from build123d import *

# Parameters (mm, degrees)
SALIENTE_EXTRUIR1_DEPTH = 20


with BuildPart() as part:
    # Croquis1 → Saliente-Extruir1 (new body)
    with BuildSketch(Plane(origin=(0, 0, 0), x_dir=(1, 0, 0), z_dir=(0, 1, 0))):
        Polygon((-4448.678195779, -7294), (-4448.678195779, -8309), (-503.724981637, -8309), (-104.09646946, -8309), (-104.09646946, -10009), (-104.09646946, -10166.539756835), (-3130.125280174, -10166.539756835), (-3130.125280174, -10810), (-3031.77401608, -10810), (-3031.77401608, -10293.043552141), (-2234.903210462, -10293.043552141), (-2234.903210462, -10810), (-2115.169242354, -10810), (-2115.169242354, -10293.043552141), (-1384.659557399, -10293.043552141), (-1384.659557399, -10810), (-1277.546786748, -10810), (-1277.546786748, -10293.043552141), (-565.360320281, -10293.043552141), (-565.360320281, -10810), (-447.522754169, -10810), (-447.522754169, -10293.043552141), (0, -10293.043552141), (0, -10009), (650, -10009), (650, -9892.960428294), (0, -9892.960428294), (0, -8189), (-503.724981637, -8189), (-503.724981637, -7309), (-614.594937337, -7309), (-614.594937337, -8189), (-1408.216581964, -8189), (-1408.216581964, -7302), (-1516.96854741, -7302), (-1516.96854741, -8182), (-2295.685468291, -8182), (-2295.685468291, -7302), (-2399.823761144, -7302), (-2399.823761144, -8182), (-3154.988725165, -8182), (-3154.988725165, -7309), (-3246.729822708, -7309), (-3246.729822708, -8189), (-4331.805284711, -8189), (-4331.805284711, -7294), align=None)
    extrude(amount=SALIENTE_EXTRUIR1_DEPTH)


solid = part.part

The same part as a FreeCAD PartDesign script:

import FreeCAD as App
import Part
import Sketcher
from FreeCAD import Vector
Q = App.Units.Quantity

doc = App.newDocument("Part")
body = doc.addObject("PartDesign::Body", "Body")

# Sketch on XZ plane
sketch1 = doc.addObject("Sketcher::SketchObject", "Sketch")
body.addObject(sketch1)
sketch1.AttachmentSupport = (doc.XZ_Plane, [""])
sketch1.MapMode = "FlatFace"
sketch1.addGeometry([
    Part.LineSegment(Vector(-4448.678196, 7294, 0), Vector(-4448.678196, 8309, 0)),  # 0
    Part.LineSegment(Vector(-4448.678196, 8309, 0), Vector(-104.096469, 8309, 0)),  # 1
    Part.LineSegment(Vector(-104.096469, 8309, 0), Vector(-104.096469, 10166.539757, 0)),  # 2
    Part.LineSegment(Vector(-104.096469, 10166.539757, 0), Vector(-3130.12528, 10166.539757, 0)),  # 3
    Part.LineSegment(Vector(-3130.12528, 10166.539757, 0), Vector(-3130.12528, 10810, 0)),  # 4
    Part.LineSegment(Vector(-3130.12528, 10810, 0), Vector(-3031.774016, 10810, 0)),  # 5
    Part.LineSegment(Vector(-3031.774016, 10810, 0), Vector(-3031.774016, 10293.043552, 0)),  # 6
    Part.LineSegment(Vector(-3031.774016, 10293.043552, 0), Vector(-2234.90321, 10293.043552, 0)),  # 7
    Part.LineSegment(Vector(-2234.90321, 10293.043552, 0), Vector(-2234.90321, 10810, 0)),  # 8
    Part.LineSegment(Vector(-2234.90321, 10810, 0), Vector(-2115.169242, 10810, 0)),  # 9
    Part.LineSegment(Vector(-2115.169242, 10810, 0), Vector(-2115.169242, 10293.043552, 0)),  # 10
    Part.LineSegment(Vector(-2115.169242, 10293.043552, 0), Vector(-1384.659557, 10293.043552, 0)),  # 11
    Part.LineSegment(Vector(-1384.659557, 10293.043552, 0), Vector(-1384.659557, 10810, 0)),  # 12
    Part.LineSegment(Vector(-1384.659557, 10810, 0), Vector(-1277.546787, 10810, 0)),  # 13
    Part.LineSegment(Vector(-1277.546787, 10810, 0), Vector(-1277.546787, 10293.043552, 0)),  # 14
    Part.LineSegment(Vector(-1277.546787, 10293.043552, 0), Vector(-565.36032, 10293.043552, 0)),  # 15
    Part.LineSegment(Vector(-565.36032, 10293.043552, 0), Vector(-565.36032, 10810, 0)),  # 16
    Part.LineSegment(Vector(-565.36032, 10810, 0), Vector(-447.522754, 10810, 0)),  # 17
    Part.LineSegment(Vector(-447.522754, 10810, 0), Vector(-447.522754, 10293.043552, 0)),  # 18
    Part.LineSegment(Vector(-447.522754, 10293.043552, 0), Vector(0, 10293.043552, 0)),  # 19
    Part.LineSegment(Vector(0, 10293.043552, 0), Vector(0, 10009, 0)),  # 20
    Part.LineSegment(Vector(0, 10009, 0), Vector(650, 10009, 0)),  # 21
    Part.LineSegment(Vector(650, 10009, 0), Vector(650, 9892.960428, 0)),  # 22
    Part.LineSegment(Vector(650, 9892.960428, 0), Vector(0, 9892.960428, 0)),  # 23
    Part.LineSegment(Vector(0, 9892.960428, 0), Vector(0, 8189, 0)),  # 24
    Part.LineSegment(Vector(0, 8189, 0), Vector(-503.724982, 8189, 0)),  # 25
    Part.LineSegment(Vector(-503.724982, 8189, 0), Vector(-503.724982, 7309, 0)),  # 26
    Part.LineSegment(Vector(-503.724982, 7309, 0), Vector(-614.594937, 7309, 0)),  # 27
    Part.LineSegment(Vector(-614.594937, 7309, 0), Vector(-614.594937, 8189, 0)),  # 28
    Part.LineSegment(Vector(-614.594937, 8189, 0), Vector(-1408.216582, 8189, 0)),  # 29
    Part.LineSegment(Vector(-1408.216582, 8189, 0), Vector(-1408.216582, 7302, 0)),  # 30
    Part.LineSegment(Vector(-1408.216582, 7302, 0), Vector(-1516.968547, 7302, 0)),  # 31
    Part.LineSegment(Vector(-1516.968547, 7302, 0), Vector(-1516.968547, 8182, 0)),  # 32
    Part.LineSegment(Vector(-1516.968547, 8182, 0), Vector(-2295.685468, 8182, 0)),  # 33
    Part.LineSegment(Vector(-2295.685468, 8182, 0), Vector(-2295.685468, 7302, 0)),  # 34
    Part.LineSegment(Vector(-2295.685468, 7302, 0), Vector(-2399.823761, 7302, 0)),  # 35
    Part.LineSegment(Vector(-2399.823761, 7302, 0), Vector(-2399.823761, 8182, 0)),  # 36
    Part.LineSegment(Vector(-2399.823761, 8182, 0), Vector(-3154.988725, 8182, 0)),  # 37
    Part.LineSegment(Vector(-3154.988725, 8182, 0), Vector(-3154.988725, 7309, 0)),  # 38
    Part.LineSegment(Vector(-3154.988725, 7309, 0), Vector(-3246.729823, 7309, 0)),  # 39
    Part.LineSegment(Vector(-3246.729823, 7309, 0), Vector(-3246.729823, 8189, 0)),  # 40
    Part.LineSegment(Vector(-3246.729823, 8189, 0), Vector(-4331.805285, 8189, 0)),  # 41
    Part.LineSegment(Vector(-4331.805285, 8189, 0), Vector(-4331.805285, 7294, 0)),  # 42
    Part.LineSegment(Vector(-4331.805285, 7294, 0), Vector(-4448.678196, 7294, 0)),  # 43
], False)
sketch1.addConstraint([
    Sketcher.Constraint("Coincident", 0, 2, 1, 1),
    Sketcher.Constraint("Coincident", 1, 2, 2, 1),
    Sketcher.Constraint("Coincident", 2, 2, 3, 1),
    Sketcher.Constraint("Coincident", 3, 2, 4, 1),
    Sketcher.Constraint("Coincident", 4, 2, 5, 1),
    Sketcher.Constraint("Coincident", 5, 2, 6, 1),
    Sketcher.Constraint("Coincident", 6, 2, 7, 1),
    Sketcher.Constraint("Coincident", 7, 2, 8, 1),
    Sketcher.Constraint("Coincident", 8, 2, 9, 1),
    Sketcher.Constraint("Coincident", 9, 2, 10, 1),
    Sketcher.Constraint("Coincident", 10, 2, 11, 1),
    Sketcher.Constraint("Coincident", 11, 2, 12, 1),
    Sketcher.Constraint("Coincident", 12, 2, 13, 1),
    Sketcher.Constraint("Coincident", 13, 2, 14, 1),
    Sketcher.Constraint("Coincident", 14, 2, 15, 1),
    Sketcher.Constraint("Coincident", 15, 2, 16, 1),
    Sketcher.Constraint("Coincident", 16, 2, 17, 1),
    Sketcher.Constraint("Coincident", 17, 2, 18, 1),
    Sketcher.Constraint("Coincident", 18, 2, 19, 1),
    Sketcher.Constraint("Coincident", 19, 2, 20, 1),
    Sketcher.Constraint("Coincident", 20, 2, 21, 1),
    Sketcher.Constraint("Coincident", 21, 2, 22, 1),
    Sketcher.Constraint("Coincident", 22, 2, 23, 1),
    Sketcher.Constraint("Coincident", 23, 2, 24, 1),
    Sketcher.Constraint("Coincident", 24, 2, 25, 1),
    Sketcher.Constraint("Coincident", 25, 2, 26, 1),
    Sketcher.Constraint("Coincident", 26, 2, 27, 1),
    Sketcher.Constraint("Coincident", 27, 2, 28, 1),
    Sketcher.Constraint("Coincident", 28, 2, 29, 1),
    Sketcher.Constraint("Coincident", 29, 2, 30, 1),
    Sketcher.Constraint("Coincident", 30, 2, 31, 1),
    Sketcher.Constraint("Coincident", 31, 2, 32, 1),
    Sketcher.Constraint("Coincident", 32, 2, 33, 1),
    Sketcher.Constraint("Coincident", 33, 2, 34, 1),
    Sketcher.Constraint("Coincident", 34, 2, 35, 1),
    Sketcher.Constraint("Coincident", 35, 2, 36, 1),
    Sketcher.Constraint("Coincident", 36, 2, 37, 1),
    Sketcher.Constraint("Coincident", 37, 2, 38, 1),
    Sketcher.Constraint("Coincident", 38, 2, 39, 1),
    Sketcher.Constraint("Coincident", 39, 2, 40, 1),
    Sketcher.Constraint("Coincident", 40, 2, 41, 1),
    Sketcher.Constraint("Coincident", 41, 2, 42, 1),
    Sketcher.Constraint("Coincident", 42, 2, 43, 1),
    Sketcher.Constraint("Coincident", 43, 2, 0, 1),
    Sketcher.Constraint("Vertical", 0),
    Sketcher.Constraint("Horizontal", 1),
    Sketcher.Constraint("Vertical", 2),
    Sketcher.Constraint("Horizontal", 3),
    Sketcher.Constraint("Vertical", 4),
    Sketcher.Constraint("Horizontal", 5),
    Sketcher.Constraint("Vertical", 6),
    Sketcher.Constraint("Horizontal", 7),
    Sketcher.Constraint("Vertical", 8),
    Sketcher.Constraint("Horizontal", 9),
    Sketcher.Constraint("Vertical", 10),
    Sketcher.Constraint("Horizontal", 11),
    Sketcher.Constraint("Vertical", 12),
    Sketcher.Constraint("Horizontal", 13),
    Sketcher.Constraint("Vertical", 14),
    Sketcher.Constraint("Horizontal", 15),
    Sketcher.Constraint("Vertical", 16),
    Sketcher.Constraint("Horizontal", 17),
    Sketcher.Constraint("Vertical", 18),
    Sketcher.Constraint("Horizontal", 19),
    Sketcher.Constraint("Vertical", 20),
    Sketcher.Constraint("Horizontal", 21),
    Sketcher.Constraint("Vertical", 22),
    Sketcher.Constraint("Horizontal", 23),
    Sketcher.Constraint("Vertical", 24),
    Sketcher.Constraint("Horizontal", 25),
    Sketcher.Constraint("Vertical", 26),
    Sketcher.Constraint("Horizontal", 27),
    Sketcher.Constraint("Vertical", 28),
    Sketcher.Constraint("Horizontal", 29),
    Sketcher.Constraint("Vertical", 30),
    Sketcher.Constraint("Horizontal", 31),
    Sketcher.Constraint("Vertical", 32),
    Sketcher.Constraint("Horizontal", 33),
    Sketcher.Constraint("Vertical", 34),
    Sketcher.Constraint("Horizontal", 35),
    Sketcher.Constraint("Vertical", 36),
    Sketcher.Constraint("Horizontal", 37),
    Sketcher.Constraint("Vertical", 38),
    Sketcher.Constraint("Horizontal", 39),
    Sketcher.Constraint("Vertical", 40),
    Sketcher.Constraint("Horizontal", 41),
    Sketcher.Constraint("Vertical", 42),
    Sketcher.Constraint("Horizontal", 43),
    Sketcher.Constraint("PointOnObject", 19, 2, -2),
    Sketcher.Constraint("PointOnObject", 23, 2, -2),
    Sketcher.Constraint("Horizontal", 5, 2, 8, 2),
    Sketcher.Constraint("Horizontal", 7, 2, 10, 2),
    Sketcher.Constraint("Horizontal", 9, 2, 12, 2),
    Sketcher.Constraint("Horizontal", 11, 2, 14, 2),
    Sketcher.Constraint("Horizontal", 13, 2, 16, 2),
    Sketcher.Constraint("Horizontal", 15, 2, 18, 2),
    Sketcher.Constraint("Horizontal", 25, 2, 28, 2),
    Sketcher.Constraint("Horizontal", 31, 2, 34, 2),
    Sketcher.Constraint("Horizontal", 33, 2, 36, 2),
    Sketcher.Constraint("Horizontal", 27, 2, 38, 2),
    Sketcher.Constraint("Horizontal", 29, 2, 40, 2),
    Sketcher.Constraint("Equal", 28, 32),
    Sketcher.Constraint("DistanceX", 21, 1, 21, 2, Q("650 mm")),
    Sketcher.Constraint("DistanceY", 0, 1, 0, 2, Q("1015 mm")),
    Sketcher.Constraint("DistanceY", 26, 2, 26, 1, Q("880 mm")),
    Sketcher.Constraint("DistanceY", 30, 2, 30, 1, Q("887 mm")),
    Sketcher.Constraint("DistanceY", 42, 2, 42, 1, Q("895 mm")),
    Sketcher.Constraint("DistanceY", -1, 1, 0, 2, Q("8309 mm")),
    Sketcher.Constraint("DistanceY", -1, 1, 4, 2, Q("10810 mm")),
    Sketcher.Constraint("DistanceY", -1, 1, 20, 2, Q("10009 mm")),
    Sketcher.Constraint("DistanceX", 3, 2, 3, 1, Q("3026.028811 mm")),
    Sketcher.Constraint("DistanceX", 9, 1, 9, 2, Q("119.733968 mm")),
    Sketcher.Constraint("DistanceX", 13, 1, 13, 2, Q("107.112771 mm")),
    Sketcher.Constraint("DistanceX", 25, 2, 25, 1, Q("503.724982 mm")),
    Sketcher.Constraint("DistanceX", 33, 2, 33, 1, Q("778.716921 mm")),
    Sketcher.Constraint("DistanceX", 43, 2, 43, 1, Q("116.872911 mm")),
    Sketcher.Constraint("DistanceY", 22, 2, 22, 1, Q("116.039572 mm")),
    Sketcher.Constraint("DistanceX", 29, 2, 25, 2, Q("904.4916 mm")),
    Sketcher.Constraint("DistanceX", 1, 1, 1, 2, Q("4344.581726 mm")),
    Sketcher.Constraint("DistanceX", 5, 1, 5, 2, Q("98.351264 mm")),
    Sketcher.Constraint("DistanceX", 7, 1, 7, 2, Q("796.870806 mm")),
    Sketcher.Constraint("DistanceX", 11, 1, 11, 2, Q("730.509685 mm")),
    Sketcher.Constraint("DistanceX", 15, 1, 15, 2, Q("712.186466 mm")),
    Sketcher.Constraint("DistanceX", 17, 1, 17, 2, Q("117.837566 mm")),
    Sketcher.Constraint("DistanceX", 19, 1, 19, 2, Q("447.522754 mm")),
    Sketcher.Constraint("DistanceX", 27, 2, 27, 1, Q("110.869956 mm")),
    Sketcher.Constraint("DistanceX", 31, 2, 31, 1, Q("108.751965 mm")),
    Sketcher.Constraint("DistanceX", 35, 2, 35, 1, Q("104.138293 mm")),
    Sketcher.Constraint("DistanceX", 37, 2, 37, 1, Q("755.164964 mm")),
    Sketcher.Constraint("DistanceX", 39, 2, 39, 1, Q("91.741098 mm")),
    Sketcher.Constraint("DistanceY", 2, 1, 2, 2, Q("1857.539757 mm")),
    Sketcher.Constraint("DistanceY", 6, 2, 6, 1, Q("516.956448 mm")),
])
pad1 = doc.addObject("PartDesign::Pad", "Pad")
body.addObject(pad1)
pad1.Profile = sketch1
pad1.Length = 20
pad1.Reversed = True

doc.recompute()
